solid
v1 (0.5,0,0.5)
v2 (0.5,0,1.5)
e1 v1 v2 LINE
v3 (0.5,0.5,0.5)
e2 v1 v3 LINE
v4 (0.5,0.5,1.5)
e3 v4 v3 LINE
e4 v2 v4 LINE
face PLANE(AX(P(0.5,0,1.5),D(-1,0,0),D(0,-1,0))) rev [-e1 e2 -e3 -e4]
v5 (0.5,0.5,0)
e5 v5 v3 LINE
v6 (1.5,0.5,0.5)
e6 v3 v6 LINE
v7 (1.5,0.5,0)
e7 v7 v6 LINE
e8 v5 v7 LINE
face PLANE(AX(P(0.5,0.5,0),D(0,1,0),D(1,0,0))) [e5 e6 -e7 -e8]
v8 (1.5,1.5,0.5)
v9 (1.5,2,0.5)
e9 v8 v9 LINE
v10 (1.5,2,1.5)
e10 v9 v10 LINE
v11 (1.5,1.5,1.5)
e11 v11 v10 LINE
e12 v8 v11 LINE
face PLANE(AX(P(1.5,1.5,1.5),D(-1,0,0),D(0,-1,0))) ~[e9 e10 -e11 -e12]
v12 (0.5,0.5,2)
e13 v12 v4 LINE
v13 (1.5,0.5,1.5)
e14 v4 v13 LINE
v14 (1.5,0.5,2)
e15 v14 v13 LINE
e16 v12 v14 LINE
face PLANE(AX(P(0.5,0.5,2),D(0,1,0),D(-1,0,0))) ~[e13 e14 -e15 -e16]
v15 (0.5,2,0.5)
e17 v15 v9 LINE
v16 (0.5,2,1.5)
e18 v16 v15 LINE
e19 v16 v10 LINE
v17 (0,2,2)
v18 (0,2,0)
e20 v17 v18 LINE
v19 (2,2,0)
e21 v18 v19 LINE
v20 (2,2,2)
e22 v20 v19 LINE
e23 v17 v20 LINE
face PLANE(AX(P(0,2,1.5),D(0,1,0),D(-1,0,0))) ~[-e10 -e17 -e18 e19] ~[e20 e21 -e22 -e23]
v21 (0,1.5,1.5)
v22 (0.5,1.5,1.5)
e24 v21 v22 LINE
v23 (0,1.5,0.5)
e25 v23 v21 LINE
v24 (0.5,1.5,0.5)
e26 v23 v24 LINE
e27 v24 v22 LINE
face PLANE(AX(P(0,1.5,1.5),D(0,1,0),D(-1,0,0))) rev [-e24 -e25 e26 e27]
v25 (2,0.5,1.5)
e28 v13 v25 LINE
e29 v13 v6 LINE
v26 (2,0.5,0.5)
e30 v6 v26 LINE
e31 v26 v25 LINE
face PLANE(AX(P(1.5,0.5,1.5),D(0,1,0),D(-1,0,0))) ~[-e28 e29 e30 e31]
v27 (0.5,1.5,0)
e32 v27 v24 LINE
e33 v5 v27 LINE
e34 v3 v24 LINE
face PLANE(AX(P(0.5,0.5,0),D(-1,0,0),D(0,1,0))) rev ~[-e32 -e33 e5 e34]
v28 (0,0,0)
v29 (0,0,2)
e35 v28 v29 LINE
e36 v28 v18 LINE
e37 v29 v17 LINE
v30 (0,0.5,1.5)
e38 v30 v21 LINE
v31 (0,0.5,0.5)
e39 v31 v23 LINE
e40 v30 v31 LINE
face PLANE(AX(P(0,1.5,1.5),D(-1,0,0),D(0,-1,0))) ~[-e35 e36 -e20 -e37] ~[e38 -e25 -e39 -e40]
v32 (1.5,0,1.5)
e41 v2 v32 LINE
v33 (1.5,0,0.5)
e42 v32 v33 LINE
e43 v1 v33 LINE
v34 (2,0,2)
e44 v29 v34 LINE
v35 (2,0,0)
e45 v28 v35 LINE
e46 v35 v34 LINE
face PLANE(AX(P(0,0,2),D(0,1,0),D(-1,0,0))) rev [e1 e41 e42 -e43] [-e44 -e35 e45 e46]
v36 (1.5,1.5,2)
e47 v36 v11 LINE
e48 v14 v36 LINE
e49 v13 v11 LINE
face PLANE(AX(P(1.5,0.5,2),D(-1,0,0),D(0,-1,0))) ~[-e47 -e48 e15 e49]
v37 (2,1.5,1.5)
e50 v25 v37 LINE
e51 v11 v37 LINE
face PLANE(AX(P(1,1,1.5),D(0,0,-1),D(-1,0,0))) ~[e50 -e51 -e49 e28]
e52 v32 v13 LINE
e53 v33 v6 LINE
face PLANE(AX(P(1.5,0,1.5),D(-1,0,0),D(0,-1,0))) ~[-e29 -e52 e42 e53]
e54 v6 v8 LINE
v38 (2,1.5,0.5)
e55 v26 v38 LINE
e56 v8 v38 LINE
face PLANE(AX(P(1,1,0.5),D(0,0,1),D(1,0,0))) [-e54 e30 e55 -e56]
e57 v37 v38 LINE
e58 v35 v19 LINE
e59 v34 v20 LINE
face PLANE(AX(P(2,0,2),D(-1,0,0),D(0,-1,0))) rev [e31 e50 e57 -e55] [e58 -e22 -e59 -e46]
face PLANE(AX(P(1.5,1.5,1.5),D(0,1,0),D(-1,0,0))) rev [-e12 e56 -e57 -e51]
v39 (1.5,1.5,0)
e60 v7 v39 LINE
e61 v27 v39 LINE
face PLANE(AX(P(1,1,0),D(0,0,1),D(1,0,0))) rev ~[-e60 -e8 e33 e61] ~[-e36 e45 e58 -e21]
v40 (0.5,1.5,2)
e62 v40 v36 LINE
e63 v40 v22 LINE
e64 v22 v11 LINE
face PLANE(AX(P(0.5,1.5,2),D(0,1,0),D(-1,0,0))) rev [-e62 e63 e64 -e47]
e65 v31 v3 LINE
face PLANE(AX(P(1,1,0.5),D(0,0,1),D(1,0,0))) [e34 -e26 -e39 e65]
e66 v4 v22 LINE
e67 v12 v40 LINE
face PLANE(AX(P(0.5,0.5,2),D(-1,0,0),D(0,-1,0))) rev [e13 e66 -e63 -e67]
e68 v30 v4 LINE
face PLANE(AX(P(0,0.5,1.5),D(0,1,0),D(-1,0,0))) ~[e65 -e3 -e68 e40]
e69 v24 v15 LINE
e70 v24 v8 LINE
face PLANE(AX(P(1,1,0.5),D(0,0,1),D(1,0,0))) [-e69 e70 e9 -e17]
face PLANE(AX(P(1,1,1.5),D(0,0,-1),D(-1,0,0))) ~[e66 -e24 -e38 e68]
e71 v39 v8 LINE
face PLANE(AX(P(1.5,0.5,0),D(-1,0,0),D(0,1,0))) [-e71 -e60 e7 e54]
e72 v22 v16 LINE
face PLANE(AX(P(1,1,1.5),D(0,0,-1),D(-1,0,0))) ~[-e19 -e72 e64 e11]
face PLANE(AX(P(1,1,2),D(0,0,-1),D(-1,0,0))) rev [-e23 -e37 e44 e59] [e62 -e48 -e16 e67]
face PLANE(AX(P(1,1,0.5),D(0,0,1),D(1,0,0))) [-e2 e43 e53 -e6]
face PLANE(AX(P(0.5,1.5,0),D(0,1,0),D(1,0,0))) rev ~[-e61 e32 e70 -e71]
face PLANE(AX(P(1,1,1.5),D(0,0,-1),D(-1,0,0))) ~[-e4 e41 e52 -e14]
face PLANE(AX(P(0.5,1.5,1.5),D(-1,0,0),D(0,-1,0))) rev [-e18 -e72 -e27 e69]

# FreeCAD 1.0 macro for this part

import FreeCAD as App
import Part
import Sketcher
from FreeCAD import Vector
Q = App.Units.Quantity

doc = App.newDocument("Part")
body = doc.addObject("PartDesign::Body", "Body")

sketch1 = body.newObject("Sketcher::SketchObject", "Sketch")
sketch1.AttachmentSupport = (doc.getObject("XY_Plane"), [""])
sketch1.MapMode = "FlatFace"
sketch1.addGeometry(Part.LineSegment(Vector(0, 2, 0), Vector(0, 0, 0)), False)
sketch1.addGeometry(Part.LineSegment(Vector(0, 0, 0), Vector(2, 0, 0)), False)
sketch1.addGeometry(Part.LineSegment(Vector(2, 0, 0), Vector(2, 2, 0)), False)
sketch1.addGeometry(Part.LineSegment(Vector(2, 2, 0), Vector(0, 2, 0)), False)
sketch1.addGeometry(Part.LineSegment(Vector(1.5, 0.5, 0), Vector(0.5, 0.5, 0)), False)
sketch1.addGeometry(Part.LineSegment(Vector(0.5, 0.5, 0), Vector(0.5, 1.5, 0)), False)
sketch1.addGeometry(Part.LineSegment(Vector(0.5, 1.5, 0), Vector(1.5, 1.5, 0)), False)
sketch1.addGeometry(Part.LineSegment(Vector(1.5, 1.5, 0), Vector(1.5, 0.5, 0)), False)
sketch1.addConstraint(Sketcher.Constraint("Coincident", 0, 2, 1, 1))
sketch1.addConstraint(Sketcher.Constraint("Coincident", 1, 2, 2, 1))
sketch1.addConstraint(Sketcher.Constraint("Coincident", 2, 2, 3, 1))
sketch1.addConstraint(Sketcher.Constraint("Coincident", 3, 2, 0, 1))
sketch1.addConstraint(Sketcher.Constraint("Coincident", 4, 2, 5, 1))
sketch1.addConstraint(Sketcher.Constraint("Coincident", 5, 2, 6, 1))
sketch1.addConstraint(Sketcher.Constraint("Coincident", 6, 2, 7, 1))
sketch1.addConstraint(Sketcher.Constraint("Coincident", 7, 2, 4, 1))
sketch1.addConstraint(Sketcher.Constraint("Vertical", 0))
sketch1.addConstraint(Sketcher.Constraint("Horizontal", 1))
sketch1.addConstraint(Sketcher.Constraint("Vertical", 2))
sketch1.addConstraint(Sketcher.Constraint("Horizontal", 3))
sketch1.addConstraint(Sketcher.Constraint("Horizontal", 4))
sketch1.addConstraint(Sketcher.Constraint("Vertical", 5))
sketch1.addConstraint(Sketcher.Constraint("Horizontal", 6))
sketch1.addConstraint(Sketcher.Constraint("Vertical", 7))
sketch1.addConstraint(Sketcher.Constraint("Coincident", 0, 2, -1, 1))
sketch1.addConstraint(Sketcher.Constraint("Equal", 3, 0))
sketch1.addConstraint(Sketcher.Constraint("Equal", 6, 5))
sketch1.addConstraint(Sketcher.Constraint("DistanceX", 1, 1, 1, 2, Q("2 mm")))
sketch1.addConstraint(Sketcher.Constraint("DistanceX", 4, 2, 4, 1, Q("1 mm")))
sketch1.addConstraint(Sketcher.Constraint("DistanceX", -1, 1, 4, 2, Q("0.5 mm")))
sketch1.addConstraint(Sketcher.Constraint("DistanceY", -1, 1, 4, 2, Q("0.5 mm")))
pad1 = body.newObject("PartDesign::Pad", "Pad")
pad1.Profile = sketch1
pad1.Length = 0.5

sketch2 = body.newObject("Sketcher::SketchObject", "Sketch001")
sketch2.AttachmentSupport = (doc.getObject("XY_Plane"), [""])
sketch2.MapMode = "FlatFace"
sketch2.AttachmentOffset = App.Placement(Vector(0, 0, 0.5), App.Rotation())
sketch2.addGeometry(Part.LineSegment(Vector(0, 2, 0), Vector(0, 1.5, 0)), False)
sketch2.addGeometry(Part.LineSegment(Vector(0, 1.5, 0), Vector(0.5, 1.5, 0)), False)
sketch2.addGeometry(Part.LineSegment(Vector(0.5, 1.5, 0), Vector(0.5, 2, 0)), False)
sketch2.addGeometry(Part.LineSegment(Vector(0.5, 2, 0), Vector(0, 2, 0)), False)
sketch2.addGeometry(Part.LineSegment(Vector(0, 0.5, 0), Vector(0, 0, 0)), False)
sketch2.addGeometry(Part.LineSegment(Vector(0, 0, 0), Vector(0.5, 0, 0)), False)
sketch2.addGeometry(Part.LineSegment(Vector(0.5, 0, 0), Vector(0.5, 0.5, 0)), False)
sketch2.addGeometry(Part.LineSegment(Vector(0.5, 0.5, 0), Vector(0, 0.5, 0)), False)
sketch2.addGeometry(Part.LineSegment(Vector(1.5, 0.5, 0), Vector(1.5, 0, 0)), False)
sketch2.addGeometry(Part.LineSegment(Vector(1.5, 0, 0), Vector(2, 0, 0)), False)
sketch2.addGeometry(Part.LineSegment(Vector(2, 0, 0), Vector(2, 0.5, 0)), False)
sketch2.addGeometry(Part.LineSegment(Vector(2, 0.5, 0), Vector(1.5, 0.5, 0)), False)
sketch2.addGeometry(Part.LineSegment(Vector(1.5, 2, 0), Vector(1.5, 1.5, 0)), False)
sketch2.addGeometry(Part.LineSegment(Vector(1.5, 1.5, 0), Vector(2, 1.5, 0)), False)
sketch2.addGeometry(Part.LineSegment(Vector(2, 1.5, 0), Vector(2, 2, 0)), False)
sketch2.addGeometry(Part.LineSegment(Vector(2, 2, 0), Vector(1.5, 2, 0)), False)
sketch2.addConstraint(Sketcher.Constraint("Coincident", 0, 2, 1, 1))
sketch2.addConstraint(Sketcher.Constraint("Coincident", 1, 2, 2, 1))
sketch2.addConstraint(Sketcher.Constraint("Coincident", 2, 2, 3, 1))
sketch2.addConstraint(Sketcher.Constraint("Coincident", 3, 2, 0, 1))
sketch2.addConstraint(Sketcher.Constraint("Coincident", 4, 2, 5, 1))
sketch2.addConstraint(Sketcher.Constraint("Coincident", 5, 2, 6, 1))
sketch2.addConstraint(Sketcher.Constraint("Coincident", 6, 2, 7, 1))
sketch2.addConstraint(Sketcher.Constraint("Coincident", 7, 2, 4, 1))
sketch2.addConstraint(Sketcher.Constraint("Coincident", 8, 2, 9, 1))
sketch2.addConstraint(Sketcher.Constraint("Coincident", 9, 2, 10, 1))
sketch2.addConstraint(Sketcher.Constraint("Coincident", 10, 2, 11, 1))
sketch2.addConstraint(Sketcher.Constraint("Coincident", 11, 2, 8, 1))
sketch2.addConstraint(Sketcher.Constraint("Coincident", 12, 2, 13, 1))
sketch2.addConstraint(Sketcher.Constraint("Coincident", 13, 2, 14, 1))
sketch2.addConstraint(Sketcher.Constraint("Coincident", 14, 2, 15, 1))
sketch2.addConstraint(Sketcher.Constraint("Coincident", 15, 2, 12, 1))
sketch2.addConstraint(Sketcher.Constraint("Vertical", 0))
sketch2.addConstraint(Sketcher.Constraint("Horizontal", 1))
sketch2.addConstraint(Sketcher.Constraint("Vertical", 2))
sketch2.addConstraint(Sketcher.Constraint("Horizontal", 3))
sketch2.addConstraint(Sketcher.Constraint("Vertical", 4))
sketch2.addConstraint(Sketcher.Constraint("Horizontal", 5))
sketch2.addConstraint(Sketcher.Constraint("Vertical", 6))
sketch2.addConstraint(Sketcher.Constraint("Horizontal", 7))
sketch2.addConstraint(Sketcher.Constraint("Vertical", 8))
sketch2.addConstraint(Sketcher.Constraint("Horizontal", 9))
sketch2.addConstraint(Sketcher.Constraint("Vertical", 10))
sketch2.addConstraint(Sketcher.Constraint("Horizontal", 11))
sketch2.addConstraint(Sketcher.Constraint("Vertical", 12))
sketch2.addConstraint(Sketcher.Constraint("Horizontal", 13))
sketch2.addConstraint(Sketcher.Constraint("Vertical", 14))
sketch2.addConstraint(Sketcher.Constraint("Horizontal", 15))
sketch2.addConstraint(Sketcher.Constraint("Coincident", 4, 2, -1, 1))
sketch2.addConstraint(Sketcher.Constraint("PointOnObject", 0, 2, -2))
sketch2.addConstraint(Sketcher.Constraint("PointOnObject", 8, 2, -1))
sketch2.addConstraint(Sketcher.Constraint("Horizontal", 7, 2, 10, 2))
sketch2.addConstraint(Sketcher.Constraint("Horizontal", 1, 2, 12, 2))
sketch2.addConstraint(Sketcher.Constraint("Horizontal", 3, 2, 14, 2))
sketch2.addConstraint(Sketcher.Constraint("Vertical", 2, 2, 5, 2))
sketch2.addConstraint(Sketcher.Constraint("Vertical", 11, 2, 12, 2))
sketch2.addConstraint(Sketcher.Constraint("Vertical", 10, 2, 13, 2))
sketch2.addConstraint(Sketcher.Constraint("Equal", 7, 9))
sketch2.addConstraint(Sketcher.Constraint("Equal", 15, 0))
sketch2.addConstraint(Sketcher.Constraint("Equal", 2, 4))
sketch2.addConstraint(Sketcher.Constraint("DistanceX", 1, 1, 1, 2, Q("0.5 mm")))
sketch2.addConstraint(Sketcher.Constraint("DistanceY", -1, 1, 2, 2, Q("2 mm")))
sketch2.addConstraint(Sketcher.Constraint("DistanceX", -1, 1, 9, 2, Q("2 mm")))
pad2 = body.newObject("PartDesign::Pad", "Pad001")
pad2.Profile = sketch2
pad2.Length = 0.5
body2 = doc.addObject("PartDesign::Body", "Body001")
doc.recompute()

body2.BaseFeature = body
doc.recompute()

mirroring = doc.addObject("Part::Mirroring", "Mirroring")
mirroring.Source = body
mirroring.Base = Vector(0.25, 0.25, 1)
mirroring.Normal = Vector(0, 0, 1)
body3 = doc.addObject("PartDesign::Body", "Body002")
body3.BaseFeature = mirroring
boolean = body2.newObject("PartDesign::Boolean", "Boolean")
boolean.Type = "Fuse"
boolean.addObjects([body3])
doc.recompute()
mirroring.Visibility = False

doc.recompute()
